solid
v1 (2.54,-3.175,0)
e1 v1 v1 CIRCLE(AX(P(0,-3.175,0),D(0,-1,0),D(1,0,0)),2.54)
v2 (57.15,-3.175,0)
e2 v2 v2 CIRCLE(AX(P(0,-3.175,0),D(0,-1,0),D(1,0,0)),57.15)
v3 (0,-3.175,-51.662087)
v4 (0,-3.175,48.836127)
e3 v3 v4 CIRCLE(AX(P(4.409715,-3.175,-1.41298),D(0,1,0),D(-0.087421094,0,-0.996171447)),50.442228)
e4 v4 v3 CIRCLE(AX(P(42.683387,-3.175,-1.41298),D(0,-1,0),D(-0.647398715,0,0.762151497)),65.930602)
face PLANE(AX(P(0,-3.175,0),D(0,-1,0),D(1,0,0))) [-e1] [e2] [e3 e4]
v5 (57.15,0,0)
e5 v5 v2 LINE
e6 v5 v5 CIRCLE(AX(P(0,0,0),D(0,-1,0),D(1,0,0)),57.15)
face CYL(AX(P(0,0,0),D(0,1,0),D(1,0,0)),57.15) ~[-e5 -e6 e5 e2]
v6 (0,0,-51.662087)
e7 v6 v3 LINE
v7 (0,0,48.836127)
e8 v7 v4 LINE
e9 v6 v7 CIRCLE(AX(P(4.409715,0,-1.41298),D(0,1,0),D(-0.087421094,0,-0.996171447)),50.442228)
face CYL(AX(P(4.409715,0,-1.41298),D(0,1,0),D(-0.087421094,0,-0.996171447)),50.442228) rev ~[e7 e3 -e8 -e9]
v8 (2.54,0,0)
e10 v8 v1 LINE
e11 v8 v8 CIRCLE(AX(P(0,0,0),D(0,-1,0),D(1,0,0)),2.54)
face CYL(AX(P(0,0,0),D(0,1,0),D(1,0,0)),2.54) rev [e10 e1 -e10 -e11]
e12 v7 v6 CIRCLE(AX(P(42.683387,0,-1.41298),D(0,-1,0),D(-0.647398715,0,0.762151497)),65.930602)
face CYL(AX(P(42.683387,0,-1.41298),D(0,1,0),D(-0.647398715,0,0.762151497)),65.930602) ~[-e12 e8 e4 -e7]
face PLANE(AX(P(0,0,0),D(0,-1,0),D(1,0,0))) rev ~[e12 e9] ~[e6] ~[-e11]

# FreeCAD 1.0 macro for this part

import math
import FreeCAD as App
import Part
import Sketcher
Q = App.Units.Quantity

doc = App.newDocument("Part")
params = doc.addObject("Spreadsheet::Sheet", "Params")
for row, (alias, value) in enumerate([
    ("sketch1_diameter", "4.5 in"),
    ("sketch1_diameter2", "0.2 in"),
    ("pad1_length", "0.125 in"),
], start=1):
    params.set(f"A{row}", alias)
    params.set(f"B{row}", "=" + value)
    params.setAlias(f"B{row}", alias)

body = doc.addObject("PartDesign::Body", "Body")

# Sketch on XZ plane
sketch1 = body.newObject("Sketcher::SketchObject", "Sketch")
sketch1.AttachmentSupport = (doc.getObject("XZ_Plane"), [""])
sketch1.MapMode = "FlatFace"
sketch1.addGeometry([
    Part.Circle(App.Vector(0, 0, 0), App.Vector(0, 0, 1), 57.15),
    Part.ArcOfCircle(Part.Circle(App.Vector(42.683387, -1.41298, 0), App.Vector(0, 0, 1), 65.930602), math.radians(130.345762), math.radians(229.654238)),
    Part.ArcOfCircle(Part.Circle(App.Vector(4.409715, -1.41298, 0), App.Vector(0, 0, 1), 50.442228), math.radians(95.015262), math.radians(264.984738)),
    Part.Circle(App.Vector(0, 0, 0), App.Vector(0, 0, 1), 2.54),
], False)
sketch1.addConstraint([
    Sketcher.Constraint("Coincident", 1, 1, 2, 1),
    Sketcher.Constraint("Coincident", 2, 2, 1, 2),
    Sketcher.Constraint("Coincident", 0, 3, -1, 1),
    Sketcher.Constraint("Coincident", 3, 3, -1, 1),
    Sketcher.Constraint("PointOnObject", 1, 1, -2),
    Sketcher.Constraint("PointOnObject", 2, 2, -2),
    Sketcher.Constraint("Diameter", 0, Q("4.5 in")),
    Sketcher.Constraint("Diameter", 3, Q("0.2 in")),
    Sketcher.Constraint("Radius", 1, Q("65.930602 mm")),
    Sketcher.Constraint("Radius", 2, Q("50.442228 mm")),
    Sketcher.Constraint("DistanceY", 1, 3, -1, 1, Q("1.41298 mm")),
    Sketcher.Constraint("DistanceX", -1, 1, 1, 3, Q("42.683387 mm")),
])
sketch1.setExpression("Constraints[6]", "Params.sketch1_diameter")
sketch1.setExpression("Constraints[7]", "Params.sketch1_diameter2")
pad1 = body.newObject("PartDesign::Pad", "Pad")
pad1.Profile = sketch1
pad1.setExpression("Length", "Params.pad1_length")

doc.recompute()
